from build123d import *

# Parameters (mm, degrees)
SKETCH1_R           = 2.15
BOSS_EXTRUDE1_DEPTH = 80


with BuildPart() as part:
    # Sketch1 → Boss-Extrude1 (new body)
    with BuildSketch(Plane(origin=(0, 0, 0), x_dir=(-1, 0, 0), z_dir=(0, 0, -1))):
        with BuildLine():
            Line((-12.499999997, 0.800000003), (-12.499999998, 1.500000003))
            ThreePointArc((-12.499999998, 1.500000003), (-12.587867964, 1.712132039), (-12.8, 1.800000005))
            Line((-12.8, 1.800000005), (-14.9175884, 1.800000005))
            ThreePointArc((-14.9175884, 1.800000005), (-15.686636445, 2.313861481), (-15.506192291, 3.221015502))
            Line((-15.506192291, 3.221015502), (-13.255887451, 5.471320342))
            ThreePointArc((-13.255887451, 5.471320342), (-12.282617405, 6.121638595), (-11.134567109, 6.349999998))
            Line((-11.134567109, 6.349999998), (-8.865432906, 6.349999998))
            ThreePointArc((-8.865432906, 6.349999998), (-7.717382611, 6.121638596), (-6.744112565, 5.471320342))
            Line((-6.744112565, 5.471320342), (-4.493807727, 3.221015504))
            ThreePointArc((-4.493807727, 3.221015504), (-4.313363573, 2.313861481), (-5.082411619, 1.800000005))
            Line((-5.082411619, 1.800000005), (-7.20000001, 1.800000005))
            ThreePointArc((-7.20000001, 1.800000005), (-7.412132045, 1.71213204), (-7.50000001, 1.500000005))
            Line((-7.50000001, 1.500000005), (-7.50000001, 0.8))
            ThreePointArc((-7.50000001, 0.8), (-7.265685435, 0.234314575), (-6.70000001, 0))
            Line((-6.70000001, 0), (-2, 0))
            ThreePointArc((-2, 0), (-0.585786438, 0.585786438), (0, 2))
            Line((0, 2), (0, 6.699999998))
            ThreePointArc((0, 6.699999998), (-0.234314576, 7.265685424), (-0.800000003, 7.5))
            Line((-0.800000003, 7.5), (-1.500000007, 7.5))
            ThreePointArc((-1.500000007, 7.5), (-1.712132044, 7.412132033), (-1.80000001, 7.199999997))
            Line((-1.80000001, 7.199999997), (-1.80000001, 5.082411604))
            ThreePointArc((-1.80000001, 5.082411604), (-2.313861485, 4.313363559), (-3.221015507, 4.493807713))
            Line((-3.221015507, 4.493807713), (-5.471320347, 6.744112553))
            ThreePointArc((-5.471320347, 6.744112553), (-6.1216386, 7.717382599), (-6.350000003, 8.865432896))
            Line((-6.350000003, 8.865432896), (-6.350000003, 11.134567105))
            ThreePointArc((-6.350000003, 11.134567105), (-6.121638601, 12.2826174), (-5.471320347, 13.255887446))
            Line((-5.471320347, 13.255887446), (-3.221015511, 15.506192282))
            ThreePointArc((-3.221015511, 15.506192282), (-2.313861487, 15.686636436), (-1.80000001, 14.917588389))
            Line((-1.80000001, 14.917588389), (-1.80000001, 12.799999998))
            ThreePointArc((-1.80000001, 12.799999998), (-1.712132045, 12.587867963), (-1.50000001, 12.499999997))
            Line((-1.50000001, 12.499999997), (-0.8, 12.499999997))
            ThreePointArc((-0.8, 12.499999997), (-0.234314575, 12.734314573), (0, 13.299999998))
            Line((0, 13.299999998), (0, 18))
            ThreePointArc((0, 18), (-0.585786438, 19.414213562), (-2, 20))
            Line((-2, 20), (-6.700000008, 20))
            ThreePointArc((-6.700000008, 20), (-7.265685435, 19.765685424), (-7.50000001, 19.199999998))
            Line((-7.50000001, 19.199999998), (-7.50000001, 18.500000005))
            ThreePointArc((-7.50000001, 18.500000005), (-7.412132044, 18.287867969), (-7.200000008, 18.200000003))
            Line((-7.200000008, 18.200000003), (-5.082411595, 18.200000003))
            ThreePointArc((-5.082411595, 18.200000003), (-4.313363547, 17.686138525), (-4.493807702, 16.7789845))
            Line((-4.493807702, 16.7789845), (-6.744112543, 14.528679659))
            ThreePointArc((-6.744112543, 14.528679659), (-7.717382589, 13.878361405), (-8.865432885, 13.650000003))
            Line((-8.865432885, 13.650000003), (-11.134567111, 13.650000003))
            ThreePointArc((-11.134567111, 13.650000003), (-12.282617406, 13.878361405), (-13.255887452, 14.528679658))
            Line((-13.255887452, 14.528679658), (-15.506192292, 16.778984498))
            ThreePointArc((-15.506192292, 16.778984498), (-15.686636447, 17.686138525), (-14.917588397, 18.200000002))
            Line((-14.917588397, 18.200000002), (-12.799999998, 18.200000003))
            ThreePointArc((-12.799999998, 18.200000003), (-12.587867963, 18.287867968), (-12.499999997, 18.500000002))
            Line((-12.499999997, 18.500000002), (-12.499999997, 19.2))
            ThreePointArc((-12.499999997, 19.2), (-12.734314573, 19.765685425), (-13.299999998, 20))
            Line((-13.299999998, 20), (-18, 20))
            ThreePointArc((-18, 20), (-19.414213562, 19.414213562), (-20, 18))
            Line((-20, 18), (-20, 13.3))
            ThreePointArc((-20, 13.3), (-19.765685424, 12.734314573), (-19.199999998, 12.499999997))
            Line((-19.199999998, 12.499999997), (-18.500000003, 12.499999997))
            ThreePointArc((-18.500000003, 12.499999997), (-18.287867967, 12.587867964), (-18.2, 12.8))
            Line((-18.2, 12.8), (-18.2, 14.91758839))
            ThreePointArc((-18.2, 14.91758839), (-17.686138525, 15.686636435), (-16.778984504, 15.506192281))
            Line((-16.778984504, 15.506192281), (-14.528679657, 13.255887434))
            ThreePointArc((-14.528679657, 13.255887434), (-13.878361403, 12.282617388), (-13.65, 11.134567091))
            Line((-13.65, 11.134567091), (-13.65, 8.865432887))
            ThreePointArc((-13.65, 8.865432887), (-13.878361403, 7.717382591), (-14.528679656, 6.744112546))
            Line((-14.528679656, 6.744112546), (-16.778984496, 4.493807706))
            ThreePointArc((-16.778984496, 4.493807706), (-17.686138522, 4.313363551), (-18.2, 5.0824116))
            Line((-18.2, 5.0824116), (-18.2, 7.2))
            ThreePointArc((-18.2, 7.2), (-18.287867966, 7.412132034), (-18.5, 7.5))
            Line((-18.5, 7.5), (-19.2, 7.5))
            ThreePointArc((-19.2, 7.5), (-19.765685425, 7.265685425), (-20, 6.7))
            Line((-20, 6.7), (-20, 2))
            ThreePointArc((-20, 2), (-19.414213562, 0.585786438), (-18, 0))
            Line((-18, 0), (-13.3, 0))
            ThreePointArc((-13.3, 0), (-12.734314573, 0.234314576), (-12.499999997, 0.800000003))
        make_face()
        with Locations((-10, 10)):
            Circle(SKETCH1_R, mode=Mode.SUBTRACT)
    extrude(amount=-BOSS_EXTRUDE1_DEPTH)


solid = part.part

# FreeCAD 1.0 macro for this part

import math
import FreeCAD as App
import Part
import Sketcher

V = App.Vector
Q = App.Units.Quantity

doc = App.newDocument("Part")
body = doc.addObject("PartDesign::Body", "Body")

sketch1 = body.newObject("Sketcher::SketchObject", "Sketch")
sketch1.AttachmentSupport = (doc.getObject("XY_Plane"), [""])
sketch1.MapMode = "FlatFace"
sketch1.addGeometry([
    Part.LineSegment(V(12.5, 0.8, 0), V(12.5, 1.5, 0)),
    Part.ArcOfCircle(Part.Circle(V(12.8, 1.5, 0), V(0, 0, 1), 0.3), math.radians(90), math.radians(180)),
    Part.LineSegment(V(12.8, 1.8, 0), V(14.92, 1.8, 0)),
    Part.ArcOfCircle(Part.Circle(V(14.92, 2.63, 0), V(0, 0, 1), 0.83), math.radians(-90), math.radians(45)),
    Part.LineSegment(V(15.51, 3.22, 0), V(13.26, 5.47, 0)),
    Part.ArcOfCircle(Part.Circle(V(11.13, 3.35, 0), V(0, 0, 1), 3), math.radians(45), math.radians(90)),
    Part.LineSegment(V(11.13, 6.35, 0), V(8.87, 6.35, 0)),
    Part.ArcOfCircle(Part.Circle(V(8.87, 3.35, 0), V(0, 0, 1), 3), math.radians(90), math.radians(135)),
    Part.LineSegment(V(6.74, 5.47, 0), V(4.49, 3.22, 0)),
    Part.ArcOfCircle(Part.Circle(V(5.08, 2.63, 0), V(0, 0, 1), 0.83), math.radians(135), math.radians(270)),
    Part.LineSegment(V(5.08, 1.8, 0), V(7.2, 1.8, 0)),
    Part.ArcOfCircle(Part.Circle(V(7.2, 1.5, 0), V(0, 0, 1), 0.3), math.radians(0), math.radians(90)),
    Part.LineSegment(V(7.5, 1.5, 0), V(7.5, 0.8, 0)),
    Part.ArcOfCircle(Part.Circle(V(6.7, 0.8, 0), V(0, 0, 1), 0.8), math.radians(-90), math.radians(0)),
    Part.LineSegment(V(6.7, 0, 0), V(2, 0, 0)),
    Part.ArcOfCircle(Part.Circle(V(2, 2, 0), V(0, 0, 1), 2), math.radians(-180), math.radians(-90)),
    Part.LineSegment(V(0, 2, 0), V(0, 6.7, 0)),
    Part.ArcOfCircle(Part.Circle(V(0.8, 6.7, 0), V(0, 0, 1), 0.8), math.radians(90), math.radians(180)),
    Part.LineSegment(V(0.8, 7.5, 0), V(1.5, 7.5, 0)),
    Part.ArcOfCircle(Part.Circle(V(1.5, 7.2, 0), V(0, 0, 1), 0.3), math.radians(0), math.radians(90)),
    Part.LineSegment(V(1.8, 7.2, 0), V(1.8, 5.08, 0)),
    Part.ArcOfCircle(Part.Circle(V(2.63, 5.08, 0), V(0, 0, 1), 0.83), math.radians(180), math.radians(315)),
    Part.LineSegment(V(3.22, 4.49, 0), V(5.47, 6.74, 0)),
    Part.ArcOfCircle(Part.Circle(V(3.35, 8.87, 0), V(0, 0, 1), 3), math.radians(-45), math.radians(0)),
    Part.LineSegment(V(6.35, 8.87, 0), V(6.35, 11.13, 0)),
    Part.ArcOfCircle(Part.Circle(V(3.35, 11.13, 0), V(0, 0, 1), 3), math.radians(0), math.radians(45)),
    Part.LineSegment(V(5.47, 13.26, 0), V(3.22, 15.51, 0)),
    Part.ArcOfCircle(Part.Circle(V(2.63, 14.92, 0), V(0, 0, 1), 0.83), math.radians(45), math.radians(180)),
    Part.LineSegment(V(1.8, 14.92, 0), V(1.8, 12.8, 0)),
    Part.ArcOfCircle(Part.Circle(V(1.5, 12.8, 0), V(0, 0, 1), 0.3), math.radians(-90), math.radians(0)),
    Part.LineSegment(V(1.5, 12.5, 0), V(0.8, 12.5, 0)),
    Part.ArcOfCircle(Part.Circle(V(0.8, 13.3, 0), V(0, 0, 1), 0.8), math.radians(-180), math.radians(-90)),
    Part.LineSegment(V(0, 13.3, 0), V(0, 18, 0)),
    Part.ArcOfCircle(Part.Circle(V(2, 18, 0), V(0, 0, 1), 2), math.radians(90), math.radians(180)),
    Part.LineSegment(V(2, 20, 0), V(6.7, 20, 0)),
    Part.ArcOfCircle(Part.Circle(V(6.7, 19.2, 0), V(0, 0, 1), 0.8), math.radians(0), math.radians(90)),
    Part.LineSegment(V(7.5, 19.2, 0), V(7.5, 18.5, 0)),
    Part.ArcOfCircle(Part.Circle(V(7.2, 18.5, 0), V(0, 0, 1), 0.3), math.radians(-90), math.radians(0)),
    Part.LineSegment(V(7.2, 18.2, 0), V(5.08, 18.2, 0)),
    Part.ArcOfCircle(Part.Circle(V(5.08, 17.37, 0), V(0, 0, 1), 0.83), math.radians(90), math.radians(225)),
    Part.LineSegment(V(4.49, 16.78, 0), V(6.74, 14.53, 0)),
    Part.ArcOfCircle(Part.Circle(V(8.87, 16.65, 0), V(0, 0, 1), 3), math.radians(-135), math.radians(-90)),
    Part.LineSegment(V(8.87, 13.65, 0), V(11.13, 13.65, 0)),
    Part.ArcOfCircle(Part.Circle(V(11.13, 16.65, 0), V(0, 0, 1), 3), math.radians(-90), math.radians(-45)),
    Part.LineSegment(V(13.26, 14.53, 0), V(15.51, 16.78, 0)),
    Part.ArcOfCircle(Part.Circle(V(14.92, 17.37, 0), V(0, 0, 1), 0.83), math.radians(-45), math.radians(90)),
    Part.LineSegment(V(14.92, 18.2, 0), V(12.8, 18.2, 0)),
    Part.ArcOfCircle(Part.Circle(V(12.8, 18.5, 0), V(0, 0, 1), 0.3), math.radians(-180), math.radians(-90)),
    Part.LineSegment(V(12.5, 18.5, 0), V(12.5, 19.2, 0)),
    Part.ArcOfCircle(Part.Circle(V(13.3, 19.2, 0), V(0, 0, 1), 0.8), math.radians(90), math.radians(180)),
    Part.LineSegment(V(13.3, 20, 0), V(18, 20, 0)),
    Part.ArcOfCircle(Part.Circle(V(18, 18, 0), V(0, 0, 1), 2), math.radians(0), math.radians(90)),
    Part.LineSegment(V(20, 18, 0), V(20, 13.3, 0)),
    Part.ArcOfCircle(Part.Circle(V(19.2, 13.3, 0), V(0, 0, 1), 0.8), math.radians(-90), math.radians(0)),
    Part.LineSegment(V(19.2, 12.5, 0), V(18.5, 12.5, 0)),
    Part.ArcOfCircle(Part.Circle(V(18.5, 12.8, 0), V(0, 0, 1), 0.3), math.radians(-180), math.radians(-90)),
    Part.LineSegment(V(18.2, 12.8, 0), V(18.2, 14.92, 0)),
    Part.ArcOfCircle(Part.Circle(V(17.37, 14.92, 0), V(0, 0, 1), 0.83), math.radians(0), math.radians(135)),
    Part.LineSegment(V(16.78, 15.51, 0), V(14.53, 13.26, 0)),
    Part.ArcOfCircle(Part.Circle(V(16.65, 11.13, 0), V(0, 0, 1), 3), math.radians(135), math.radians(180)),
    Part.LineSegment(V(13.65, 11.13, 0), V(13.65, 8.87, 0)),
    Part.ArcOfCircle(Part.Circle(V(16.65, 8.87, 0), V(0, 0, 1), 3), math.radians(-180), math.radians(-135)),
    Part.LineSegment(V(14.53, 6.74, 0), V(16.78, 4.49, 0)),
    Part.ArcOfCircle(Part.Circle(V(17.37, 5.08, 0), V(0, 0, 1), 0.83), math.radians(-135), math.radians(0)),
    Part.LineSegment(V(18.2, 5.08, 0), V(18.2, 7.2, 0)),
    Part.ArcOfCircle(Part.Circle(V(18.5, 7.2, 0), V(0, 0, 1), 0.3), math.radians(90), math.radians(180)),
    Part.LineSegment(V(18.5, 7.5, 0), V(19.2, 7.5, 0)),
    Part.ArcOfCircle(Part.Circle(V(19.2, 6.7, 0), V(0, 0, 1), 0.8), math.radians(0), math.radians(90)),
    Part.LineSegment(V(20, 6.7, 0), V(20, 2, 0)),
    Part.ArcOfCircle(Part.Circle(V(18, 2, 0), V(0, 0, 1), 2), math.radians(-90), math.radians(0)),
    Part.LineSegment(V(18, 0, 0), V(13.3, 0, 0)),
    Part.ArcOfCircle(Part.Circle(V(13.3, 0.8, 0), V(0, 0, 1), 0.8), math.radians(180), math.radians(270)),
    Part.Circle(V(10, 10, 0), V(0, 0, 1), 2.15),
], False)
sketch1.addConstraint([
    Sketcher.Constraint("Tangent", 0, 2, 1, 2),
    Sketcher.Constraint("Tangent", 1, 1, 2, 1),
    Sketcher.Constraint("Tangent", 2, 2, 3, 1),
    Sketcher.Constraint("Tangent", 3, 2, 4, 1),
    Sketcher.Constraint("Tangent", 4, 2, 5, 1),
    Sketcher.Constraint("Tangent", 5, 2, 6, 1),
    Sketcher.Constraint("Tangent", 6, 2, 7, 1),
    Sketcher.Constraint("Tangent", 7, 2, 8, 1),
    Sketcher.Constraint("Tangent", 8, 2, 9, 1),
    Sketcher.Constraint("Tangent", 9, 2, 10, 1),
    Sketcher.Constraint("Tangent", 10, 2, 11, 2),
    Sketcher.Constraint("Tangent", 11, 1, 12, 1),
    Sketcher.Constraint("Tangent", 12, 2, 13, 2),
    Sketcher.Constraint("Tangent", 13, 1, 14, 1),
    Sketcher.Constraint("Tangent", 14, 2, 15, 2),
    Sketcher.Constraint("Tangent", 15, 1, 16, 1),
    Sketcher.Constraint("Tangent", 16, 2, 17, 2),
    Sketcher.Constraint("Tangent", 17, 1, 18, 1),
    Sketcher.Constraint("Tangent", 18, 2, 19, 2),
    Sketcher.Constraint("Tangent", 19, 1, 20, 1),
    Sketcher.Constraint("Tangent", 20, 2, 21, 1),
    Sketcher.Constraint("Tangent", 21, 2, 22, 1),
    Sketcher.Constraint("Tangent", 22, 2, 23, 1),
    Sketcher.Constraint("Tangent", 23, 2, 24, 1),
    Sketcher.Constraint("Tangent", 24, 2, 25, 1),
    Sketcher.Constraint("Tangent", 25, 2, 26, 1),
    Sketcher.Constraint("Tangent", 26, 2, 27, 1),
    Sketcher.Constraint("Tangent", 27, 2, 28, 1),
    Sketcher.Constraint("Tangent", 28, 2, 29, 2),
    Sketcher.Constraint("Tangent", 29, 1, 30, 1),
    Sketcher.Constraint("Tangent", 30, 2, 31, 2),
    Sketcher.Constraint("Tangent", 31, 1, 32, 1),
    Sketcher.Constraint("Tangent", 32, 2, 33, 2),
    Sketcher.Constraint("Tangent", 33, 1, 34, 1),
    Sketcher.Constraint("Tangent", 34, 2, 35, 2),
    Sketcher.Constraint("Tangent", 35, 1, 36, 1),
    Sketcher.Constraint("Tangent", 36, 2, 37, 2),
    Sketcher.Constraint("Tangent", 37, 1, 38, 1),
    Sketcher.Constraint("Tangent", 38, 2, 39, 1),
    Sketcher.Constraint("Tangent", 39, 2, 40, 1),
    Sketcher.Constraint("Tangent", 40, 2, 41, 1),
    Sketcher.Constraint("Tangent", 41, 2, 42, 1),
    Sketcher.Constraint("Tangent", 42, 2, 43, 1),
    Sketcher.Constraint("Tangent", 43, 2, 44, 1),
    Sketcher.Constraint("Tangent", 44, 2, 45, 1),
    Sketcher.Constraint("Tangent", 45, 2, 46, 1),
    Sketcher.Constraint("Tangent", 46, 2, 47, 2),
    Sketcher.Constraint("Tangent", 47, 1, 48, 1),
    Sketcher.Constraint("Tangent", 48, 2, 49, 2),
    Sketcher.Constraint("Tangent", 49, 1, 50, 1),
    Sketcher.Constraint("Tangent", 50, 2, 51, 2),
    Sketcher.Constraint("Tangent", 51, 1, 52, 1),
    Sketcher.Constraint("Tangent", 52, 2, 53, 2),
    Sketcher.Constraint("Tangent", 53, 1, 54, 1),
    Sketcher.Constraint("Tangent", 54, 2, 55, 2),
    Sketcher.Constraint("Tangent", 55, 1, 56, 1),
    Sketcher.Constraint("Tangent", 56, 2, 57, 1),
    Sketcher.Constraint("Tangent", 57, 2, 58, 1),
    Sketcher.Constraint("Tangent", 58, 2, 59, 1),
    Sketcher.Constraint("Tangent", 59, 2, 60, 1),
    Sketcher.Constraint("Tangent", 60, 2, 61, 1),
    Sketcher.Constraint("Tangent", 61, 2, 62, 1),
    Sketcher.Constraint("Tangent", 62, 2, 63, 1),
    Sketcher.Constraint("Tangent", 63, 2, 64, 1),
    Sketcher.Constraint("Tangent", 64, 2, 65, 2),
    Sketcher.Constraint("Tangent", 65, 1, 66, 1),
    Sketcher.Constraint("Tangent", 66, 2, 67, 2),
    Sketcher.Constraint("Tangent", 67, 1, 68, 1),
    Sketcher.Constraint("Tangent", 68, 2, 69, 2),
    Sketcher.Constraint("Tangent", 69, 1, 70, 1),
    Sketcher.Constraint("Tangent", 70, 2, 71, 2),
    Sketcher.Constraint("Tangent", 71, 1, 0, 1),
    Sketcher.Constraint("Vertical", 0),
    Sketcher.Constraint("Horizontal", 2),
    Sketcher.Constraint("Horizontal", 6),
    Sketcher.Constraint("Horizontal", 10),
    Sketcher.Constraint("Vertical", 12),
    Sketcher.Constraint("Horizontal", 14),
    Sketcher.Constraint("Vertical", 16),
    Sketcher.Constraint("Horizontal", 18),
    Sketcher.Constraint("Vertical", 20),
    Sketcher.Constraint("Vertical", 24),
    Sketcher.Constraint("Vertical", 28),
    Sketcher.Constraint("Horizontal", 30),
    Sketcher.Constraint("Vertical", 32),
    Sketcher.Constraint("Horizontal", 34),
    Sketcher.Constraint("Vertical", 36),
    Sketcher.Constraint("Horizontal", 38),
    Sketcher.Constraint("Horizontal", 42),
    Sketcher.Constraint("Horizontal", 46),
    Sketcher.Constraint("Vertical", 48),
    Sketcher.Constraint("Horizontal", 50),
    Sketcher.Constraint("Vertical", 52),
    Sketcher.Constraint("Horizontal", 54),
    Sketcher.Constraint("Vertical", 56),
    Sketcher.Constraint("Vertical", 60),
    Sketcher.Constraint("Vertical", 64),
    Sketcher.Constraint("Horizontal", 66),
    Sketcher.Constraint("Vertical", 68),
    Sketcher.Constraint("Horizontal", 70),
    Sketcher.Constraint("Equal", 5, 7),
    Sketcher.Constraint("Equal", 3, 9),
    Sketcher.Constraint("Equal", 1, 11),
    Sketcher.Constraint("Equal", 13, 17),
    Sketcher.Constraint("Equal", 11, 19),
    Sketcher.Constraint("Equal", 9, 21),
    Sketcher.Constraint("Equal", 7, 23),
    Sketcher.Constraint("Equal", 23, 25),
    Sketcher.Constraint("Equal", 21, 27),
    Sketcher.Constraint("Equal", 19, 29),
    Sketcher.Constraint("Equal", 17, 31),
    Sketcher.Constraint("Equal", 15, 33),
    Sketcher.Constraint("Equal", 31, 35),
    Sketcher.Constraint("Equal", 29, 37),
    Sketcher.Constraint("Equal", 27, 39),
    Sketcher.Constraint("Equal", 25, 41),
    Sketcher.Constraint("Equal", 41, 43),
    Sketcher.Constraint("Equal", 39, 45),
    Sketcher.Constraint("Equal", 37, 47),
    Sketcher.Constraint("Equal", 35, 49),
    Sketcher.Constraint("Equal", 33, 51),
    Sketcher.Constraint("Equal", 49, 53),
    Sketcher.Constraint("Equal", 47, 55),
    Sketcher.Constraint("Equal", 45, 57),
    Sketcher.Constraint("Equal", 43, 59),
    Sketcher.Constraint("Equal", 59, 61),
    Sketcher.Constraint("Equal", 57, 63),
    Sketcher.Constraint("Equal", 55, 65),
    Sketcher.Constraint("Equal", 53, 67),
    Sketcher.Constraint("Equal", 51, 69),
    Sketcher.Constraint("Equal", 67, 71),
    Sketcher.Constraint("PointOnObject", 13, 1, -1),
    Sketcher.Constraint("PointOnObject", 15, 1, -2),
    Sketcher.Constraint("PointOnObject", 31, 1, -2),
    Sketcher.Constraint("PointOnObject", 69, 1, -1),
    Sketcher.Constraint("Perpendicular", 4, 8),
    Sketcher.Constraint("Parallel", 8, 22),
    Sketcher.Constraint("Perpendicular", 22, 26),
    Sketcher.Constraint("Parallel", 26, 40),
    Sketcher.Constraint("Perpendicular", 40, 44),
    Sketcher.Constraint("Parallel", 44, 58),
    Sketcher.Constraint("Perpendicular", 58, 62),
    Sketcher.Constraint("Horizontal", 3, 3, 9, 3),
    Sketcher.Constraint("Horizontal", 39, 3, 45, 3),
    Sketcher.Constraint("Horizontal", 35, 3, 49, 3),
    Sketcher.Constraint("Horizontal", 31, 3, 53, 3),
    Sketcher.Constraint("Horizontal", 27, 3, 57, 3),
    Sketcher.Constraint("Horizontal", 25, 3, 59, 3),
    Sketcher.Constraint("Horizontal", 23, 3, 61, 3),
    Sketcher.Constraint("Horizontal", 21, 3, 63, 3),
    Sketcher.Constraint("Horizontal", 19, 3, 65, 3),
    Sketcher.Constraint("Horizontal", 4, 2, 7, 2),
    Sketcher.Constraint("Vertical", 21, 3, 27, 3),
    Sketcher.Constraint("Vertical", 13, 3, 35, 3),
    Sketcher.Constraint("Vertical", 9, 3, 39, 3),
    Sketcher.Constraint("Vertical", 7, 3, 41, 3),
    Sketcher.Constraint("Vertical", 5, 3, 43, 3),
    Sketcher.Constraint("Vertical", 1, 3, 47, 3),
    Sketcher.Constraint("Vertical", 53, 3, 67, 3),
    Sketcher.Constraint("Equal", 2, 10),
    Sketcher.Constraint("Equal", 34, 50),
    Sketcher.Constraint("Equal", 30, 54),
    Sketcher.Constraint("Equal", 66, 0),
    Sketcher.Constraint("Equal", 70, 16),
    Sketcher.Constraint("Equal", 46, 20),
    Sketcher.Constraint("Equal", 42, 24),
    Sketcher.Constraint("Equal", 20, 28),
    Sketcher.Constraint("Equal", 16, 32),
    Sketcher.Constraint("Equal", 12, 36),
    Sketcher.Constraint("Equal", 8, 22),
    Sketcher.Constraint("Radius", 5, Q("3 mm")),
    Sketcher.Constraint("Radius", 15, Q("2 mm")),
    Sketcher.Constraint("Diameter", 72, Q("4.3 mm")),
    Sketcher.Constraint("Radius", 1, Q("0.3 mm")),
    Sketcher.Constraint("Radius", 13, Q("0.8 mm")),
    Sketcher.Constraint("DistanceX", 14, 2, 14, 1, Q("4.7 mm")),
    Sketcher.Constraint("DistanceX", 18, 1, 18, 2, Q("0.7 mm")),
    Sketcher.Constraint("DistanceY", -1, 1, 33, 3, Q("18 mm")),
    Sketcher.Constraint("DistanceX", -1, 1, 72, 3, Q("10 mm")),
    Sketcher.Constraint("DistanceY", -1, 1, 72, 3, Q("10 mm")),
    Sketcher.Constraint("DistanceY", -1, 1, 5, 3, Q("3.35 mm")),
    Sketcher.Constraint("Radius", 3, Q("0.832412 mm")),
    Sketcher.Constraint("DistanceX", 2, 1, 2, 2, Q("2.117588 mm")),
])
pad1 = body.newObject("PartDesign::Pad", "Pad")
pad1.Profile = sketch1
pad1.Length = 80

doc.recompute()
